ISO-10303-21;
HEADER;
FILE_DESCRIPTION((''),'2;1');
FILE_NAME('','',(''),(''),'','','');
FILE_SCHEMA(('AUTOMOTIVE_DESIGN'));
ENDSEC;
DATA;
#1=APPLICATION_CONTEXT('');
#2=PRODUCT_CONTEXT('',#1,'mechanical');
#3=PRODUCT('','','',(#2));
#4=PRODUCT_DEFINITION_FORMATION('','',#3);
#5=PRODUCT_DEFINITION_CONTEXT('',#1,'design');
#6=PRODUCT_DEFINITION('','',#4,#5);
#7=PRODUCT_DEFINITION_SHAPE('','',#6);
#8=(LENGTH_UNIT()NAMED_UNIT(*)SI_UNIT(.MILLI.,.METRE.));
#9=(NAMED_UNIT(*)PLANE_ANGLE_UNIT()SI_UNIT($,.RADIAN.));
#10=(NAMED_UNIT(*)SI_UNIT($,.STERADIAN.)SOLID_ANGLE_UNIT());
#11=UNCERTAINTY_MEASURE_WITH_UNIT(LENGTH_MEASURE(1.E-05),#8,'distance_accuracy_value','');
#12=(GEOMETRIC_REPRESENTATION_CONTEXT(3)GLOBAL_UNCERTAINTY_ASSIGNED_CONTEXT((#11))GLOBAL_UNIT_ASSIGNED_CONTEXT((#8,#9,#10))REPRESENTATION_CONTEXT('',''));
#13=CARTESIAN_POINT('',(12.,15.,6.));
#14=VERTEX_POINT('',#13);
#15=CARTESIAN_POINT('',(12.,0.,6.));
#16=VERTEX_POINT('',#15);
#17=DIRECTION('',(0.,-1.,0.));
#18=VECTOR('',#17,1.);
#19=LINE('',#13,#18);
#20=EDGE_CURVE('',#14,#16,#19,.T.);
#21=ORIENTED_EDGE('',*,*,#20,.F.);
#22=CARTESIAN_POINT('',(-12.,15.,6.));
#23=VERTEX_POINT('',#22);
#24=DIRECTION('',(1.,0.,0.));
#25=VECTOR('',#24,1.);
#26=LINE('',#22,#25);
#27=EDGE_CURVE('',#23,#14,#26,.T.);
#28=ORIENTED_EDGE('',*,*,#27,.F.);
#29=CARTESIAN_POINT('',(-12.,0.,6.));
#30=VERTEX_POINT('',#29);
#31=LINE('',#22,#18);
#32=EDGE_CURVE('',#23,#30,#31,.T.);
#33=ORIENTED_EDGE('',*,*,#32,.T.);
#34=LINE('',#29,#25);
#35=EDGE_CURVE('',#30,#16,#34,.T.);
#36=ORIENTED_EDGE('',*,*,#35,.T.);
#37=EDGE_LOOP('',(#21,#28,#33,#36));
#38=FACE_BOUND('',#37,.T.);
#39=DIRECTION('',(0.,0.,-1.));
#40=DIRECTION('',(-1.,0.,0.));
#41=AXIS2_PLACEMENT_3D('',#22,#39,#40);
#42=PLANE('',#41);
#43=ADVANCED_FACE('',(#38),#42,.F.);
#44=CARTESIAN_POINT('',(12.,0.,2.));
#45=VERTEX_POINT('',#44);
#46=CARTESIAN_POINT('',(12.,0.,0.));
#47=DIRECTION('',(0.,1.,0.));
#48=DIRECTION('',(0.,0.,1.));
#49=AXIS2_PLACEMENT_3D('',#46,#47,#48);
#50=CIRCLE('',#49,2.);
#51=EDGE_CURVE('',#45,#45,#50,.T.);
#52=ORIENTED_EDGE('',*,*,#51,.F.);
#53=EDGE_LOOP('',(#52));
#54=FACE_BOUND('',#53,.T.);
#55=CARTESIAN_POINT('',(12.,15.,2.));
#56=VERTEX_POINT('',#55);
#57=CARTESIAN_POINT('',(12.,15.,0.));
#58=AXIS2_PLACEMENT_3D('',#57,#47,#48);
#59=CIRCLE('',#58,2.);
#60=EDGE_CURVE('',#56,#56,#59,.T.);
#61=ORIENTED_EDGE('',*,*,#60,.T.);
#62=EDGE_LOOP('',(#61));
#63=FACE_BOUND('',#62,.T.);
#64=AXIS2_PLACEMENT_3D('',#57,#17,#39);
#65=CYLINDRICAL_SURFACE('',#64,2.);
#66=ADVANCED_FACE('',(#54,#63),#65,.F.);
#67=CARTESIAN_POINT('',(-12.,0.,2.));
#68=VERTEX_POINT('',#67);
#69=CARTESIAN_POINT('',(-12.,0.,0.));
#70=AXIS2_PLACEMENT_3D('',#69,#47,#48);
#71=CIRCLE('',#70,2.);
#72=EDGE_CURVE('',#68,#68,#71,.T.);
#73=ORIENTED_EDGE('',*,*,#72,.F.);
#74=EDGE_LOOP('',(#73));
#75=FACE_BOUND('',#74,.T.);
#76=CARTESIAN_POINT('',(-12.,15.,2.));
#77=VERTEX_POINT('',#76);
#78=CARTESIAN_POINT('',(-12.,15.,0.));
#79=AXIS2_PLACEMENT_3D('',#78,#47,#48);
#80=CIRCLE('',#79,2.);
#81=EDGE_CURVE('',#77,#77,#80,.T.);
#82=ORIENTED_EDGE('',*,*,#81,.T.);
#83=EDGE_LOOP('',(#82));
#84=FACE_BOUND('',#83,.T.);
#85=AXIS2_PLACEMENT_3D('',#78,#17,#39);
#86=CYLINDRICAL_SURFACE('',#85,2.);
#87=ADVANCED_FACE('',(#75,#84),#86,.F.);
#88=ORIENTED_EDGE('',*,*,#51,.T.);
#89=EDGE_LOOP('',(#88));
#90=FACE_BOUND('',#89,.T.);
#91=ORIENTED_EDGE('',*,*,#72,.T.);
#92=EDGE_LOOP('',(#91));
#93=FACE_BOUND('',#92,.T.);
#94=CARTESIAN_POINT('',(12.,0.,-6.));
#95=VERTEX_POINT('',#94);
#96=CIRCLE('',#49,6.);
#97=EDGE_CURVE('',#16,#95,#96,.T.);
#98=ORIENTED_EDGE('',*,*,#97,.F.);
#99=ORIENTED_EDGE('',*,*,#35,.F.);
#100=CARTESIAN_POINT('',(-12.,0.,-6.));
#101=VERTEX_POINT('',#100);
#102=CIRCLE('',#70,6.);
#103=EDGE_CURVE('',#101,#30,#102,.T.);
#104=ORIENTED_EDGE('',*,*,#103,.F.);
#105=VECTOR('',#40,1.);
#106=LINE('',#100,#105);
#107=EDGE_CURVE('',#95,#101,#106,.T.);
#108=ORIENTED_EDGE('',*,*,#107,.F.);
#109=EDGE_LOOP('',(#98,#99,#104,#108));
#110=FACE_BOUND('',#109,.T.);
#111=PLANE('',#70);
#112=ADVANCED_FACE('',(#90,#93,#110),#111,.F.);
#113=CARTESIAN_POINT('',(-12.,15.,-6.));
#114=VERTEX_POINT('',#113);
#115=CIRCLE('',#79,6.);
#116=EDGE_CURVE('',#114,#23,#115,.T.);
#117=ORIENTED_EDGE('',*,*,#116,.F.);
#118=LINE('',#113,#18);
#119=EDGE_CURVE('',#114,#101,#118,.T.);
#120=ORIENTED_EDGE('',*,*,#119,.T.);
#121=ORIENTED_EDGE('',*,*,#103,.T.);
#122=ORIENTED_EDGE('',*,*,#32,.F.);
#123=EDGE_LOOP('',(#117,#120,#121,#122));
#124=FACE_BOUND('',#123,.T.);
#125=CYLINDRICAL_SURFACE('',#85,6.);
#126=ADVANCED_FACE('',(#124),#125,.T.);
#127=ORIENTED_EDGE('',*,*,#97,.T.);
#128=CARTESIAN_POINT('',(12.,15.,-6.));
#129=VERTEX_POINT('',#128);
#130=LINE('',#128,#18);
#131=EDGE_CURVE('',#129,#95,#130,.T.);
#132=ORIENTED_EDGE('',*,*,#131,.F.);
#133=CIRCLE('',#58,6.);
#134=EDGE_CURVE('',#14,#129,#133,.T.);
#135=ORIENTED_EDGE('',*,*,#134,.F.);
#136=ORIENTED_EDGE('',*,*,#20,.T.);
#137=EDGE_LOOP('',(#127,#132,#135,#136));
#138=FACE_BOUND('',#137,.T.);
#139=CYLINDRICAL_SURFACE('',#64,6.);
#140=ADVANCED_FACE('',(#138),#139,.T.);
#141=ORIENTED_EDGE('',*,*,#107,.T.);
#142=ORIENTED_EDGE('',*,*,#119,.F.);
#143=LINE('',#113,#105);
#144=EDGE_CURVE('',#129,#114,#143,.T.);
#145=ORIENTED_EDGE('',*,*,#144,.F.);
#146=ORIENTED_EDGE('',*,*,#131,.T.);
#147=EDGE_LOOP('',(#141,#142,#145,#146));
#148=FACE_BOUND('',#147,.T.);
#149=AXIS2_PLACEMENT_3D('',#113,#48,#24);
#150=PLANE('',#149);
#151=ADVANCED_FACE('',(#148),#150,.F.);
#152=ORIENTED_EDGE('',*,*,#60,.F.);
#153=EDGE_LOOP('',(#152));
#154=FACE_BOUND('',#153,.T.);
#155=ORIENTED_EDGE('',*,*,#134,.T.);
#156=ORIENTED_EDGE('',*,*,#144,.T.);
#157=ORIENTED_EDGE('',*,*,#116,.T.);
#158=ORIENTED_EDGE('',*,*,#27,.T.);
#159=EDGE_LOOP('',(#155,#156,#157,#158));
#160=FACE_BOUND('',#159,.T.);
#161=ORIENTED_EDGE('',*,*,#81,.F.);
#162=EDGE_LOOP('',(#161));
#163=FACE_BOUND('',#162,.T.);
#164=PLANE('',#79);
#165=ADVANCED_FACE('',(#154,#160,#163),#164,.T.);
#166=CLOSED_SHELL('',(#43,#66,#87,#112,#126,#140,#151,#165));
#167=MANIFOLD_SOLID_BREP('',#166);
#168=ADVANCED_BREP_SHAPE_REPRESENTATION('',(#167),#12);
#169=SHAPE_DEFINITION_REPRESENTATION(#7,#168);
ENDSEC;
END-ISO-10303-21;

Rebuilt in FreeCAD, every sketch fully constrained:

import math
import FreeCAD as App
import Part
import Sketcher
Q = App.Units.Quantity

doc = App.newDocument("Part")
body = doc.addObject("PartDesign::Body", "Body")

# Sketch on XZ plane
sketch1 = body.newObject("Sketcher::SketchObject", "Sketch")
sketch1.AttachmentSupport = (doc.getObject("XZ_Plane"), [""])
sketch1.MapMode = "FlatFace"
sketch1.addGeometry(Part.LineSegment(App.Vector(12, -6, 0), App.Vector(-12, -6, 0)), False)
sketch1.addGeometry(Part.ArcOfCircle(Part.Circle(App.Vector(-12, 0, 0), App.Vector(0, 0, 1), 6), math.radians(90), math.radians(270)), False)
sketch1.addGeometry(Part.LineSegment(App.Vector(-12, 6, 0), App.Vector(12, 6, 0)), False)
sketch1.addGeometry(Part.ArcOfCircle(Part.Circle(App.Vector(12, 0, 0), App.Vector(0, 0, 1), 6), math.radians(-90), math.radians(90)), False)
sketch1.addGeometry(Part.Circle(App.Vector(12, 0, 0), App.Vector(0, 0, 1), 2), False)
sketch1.addGeometry(Part.Circle(App.Vector(-12, 0, 0), App.Vector(0, 0, 1), 2), False)
sketch1.addConstraint(Sketcher.Constraint("Tangent", 0, 2, 1, 2))
sketch1.addConstraint(Sketcher.Constraint("Tangent", 1, 1, 2, 1))
sketch1.addConstraint(Sketcher.Constraint("Tangent", 2, 2, 3, 2))
sketch1.addConstraint(Sketcher.Constraint("Tangent", 3, 1, 0, 1))
sketch1.addConstraint(Sketcher.Constraint("Horizontal", 0))
sketch1.addConstraint(Sketcher.Constraint("Horizontal", 2))
sketch1.addConstraint(Sketcher.Constraint("Coincident", 4, 3, 3, 3))
sketch1.addConstraint(Sketcher.Constraint("Coincident", 5, 3, 1, 3))
sketch1.addConstraint(Sketcher.Constraint("Equal", 4, 5))
sketch1.addConstraint(Sketcher.Constraint("Symmetric", 1, 3, 3, 3, -1, 1))
sketch1.addConstraint(Sketcher.Constraint("Diameter", 4, Q("4 mm")))
sketch1.addConstraint(Sketcher.Constraint("Radius", 1, Q("6 mm")))
sketch1.addConstraint(Sketcher.Constraint("DistanceX", 0, 2, 0, 1, Q("24 mm")))
pad1 = body.newObject("PartDesign::Pad", "Pad")
pad1.Profile = sketch1
pad1.Length = 15
pad1.Reversed = True

doc.recompute()
